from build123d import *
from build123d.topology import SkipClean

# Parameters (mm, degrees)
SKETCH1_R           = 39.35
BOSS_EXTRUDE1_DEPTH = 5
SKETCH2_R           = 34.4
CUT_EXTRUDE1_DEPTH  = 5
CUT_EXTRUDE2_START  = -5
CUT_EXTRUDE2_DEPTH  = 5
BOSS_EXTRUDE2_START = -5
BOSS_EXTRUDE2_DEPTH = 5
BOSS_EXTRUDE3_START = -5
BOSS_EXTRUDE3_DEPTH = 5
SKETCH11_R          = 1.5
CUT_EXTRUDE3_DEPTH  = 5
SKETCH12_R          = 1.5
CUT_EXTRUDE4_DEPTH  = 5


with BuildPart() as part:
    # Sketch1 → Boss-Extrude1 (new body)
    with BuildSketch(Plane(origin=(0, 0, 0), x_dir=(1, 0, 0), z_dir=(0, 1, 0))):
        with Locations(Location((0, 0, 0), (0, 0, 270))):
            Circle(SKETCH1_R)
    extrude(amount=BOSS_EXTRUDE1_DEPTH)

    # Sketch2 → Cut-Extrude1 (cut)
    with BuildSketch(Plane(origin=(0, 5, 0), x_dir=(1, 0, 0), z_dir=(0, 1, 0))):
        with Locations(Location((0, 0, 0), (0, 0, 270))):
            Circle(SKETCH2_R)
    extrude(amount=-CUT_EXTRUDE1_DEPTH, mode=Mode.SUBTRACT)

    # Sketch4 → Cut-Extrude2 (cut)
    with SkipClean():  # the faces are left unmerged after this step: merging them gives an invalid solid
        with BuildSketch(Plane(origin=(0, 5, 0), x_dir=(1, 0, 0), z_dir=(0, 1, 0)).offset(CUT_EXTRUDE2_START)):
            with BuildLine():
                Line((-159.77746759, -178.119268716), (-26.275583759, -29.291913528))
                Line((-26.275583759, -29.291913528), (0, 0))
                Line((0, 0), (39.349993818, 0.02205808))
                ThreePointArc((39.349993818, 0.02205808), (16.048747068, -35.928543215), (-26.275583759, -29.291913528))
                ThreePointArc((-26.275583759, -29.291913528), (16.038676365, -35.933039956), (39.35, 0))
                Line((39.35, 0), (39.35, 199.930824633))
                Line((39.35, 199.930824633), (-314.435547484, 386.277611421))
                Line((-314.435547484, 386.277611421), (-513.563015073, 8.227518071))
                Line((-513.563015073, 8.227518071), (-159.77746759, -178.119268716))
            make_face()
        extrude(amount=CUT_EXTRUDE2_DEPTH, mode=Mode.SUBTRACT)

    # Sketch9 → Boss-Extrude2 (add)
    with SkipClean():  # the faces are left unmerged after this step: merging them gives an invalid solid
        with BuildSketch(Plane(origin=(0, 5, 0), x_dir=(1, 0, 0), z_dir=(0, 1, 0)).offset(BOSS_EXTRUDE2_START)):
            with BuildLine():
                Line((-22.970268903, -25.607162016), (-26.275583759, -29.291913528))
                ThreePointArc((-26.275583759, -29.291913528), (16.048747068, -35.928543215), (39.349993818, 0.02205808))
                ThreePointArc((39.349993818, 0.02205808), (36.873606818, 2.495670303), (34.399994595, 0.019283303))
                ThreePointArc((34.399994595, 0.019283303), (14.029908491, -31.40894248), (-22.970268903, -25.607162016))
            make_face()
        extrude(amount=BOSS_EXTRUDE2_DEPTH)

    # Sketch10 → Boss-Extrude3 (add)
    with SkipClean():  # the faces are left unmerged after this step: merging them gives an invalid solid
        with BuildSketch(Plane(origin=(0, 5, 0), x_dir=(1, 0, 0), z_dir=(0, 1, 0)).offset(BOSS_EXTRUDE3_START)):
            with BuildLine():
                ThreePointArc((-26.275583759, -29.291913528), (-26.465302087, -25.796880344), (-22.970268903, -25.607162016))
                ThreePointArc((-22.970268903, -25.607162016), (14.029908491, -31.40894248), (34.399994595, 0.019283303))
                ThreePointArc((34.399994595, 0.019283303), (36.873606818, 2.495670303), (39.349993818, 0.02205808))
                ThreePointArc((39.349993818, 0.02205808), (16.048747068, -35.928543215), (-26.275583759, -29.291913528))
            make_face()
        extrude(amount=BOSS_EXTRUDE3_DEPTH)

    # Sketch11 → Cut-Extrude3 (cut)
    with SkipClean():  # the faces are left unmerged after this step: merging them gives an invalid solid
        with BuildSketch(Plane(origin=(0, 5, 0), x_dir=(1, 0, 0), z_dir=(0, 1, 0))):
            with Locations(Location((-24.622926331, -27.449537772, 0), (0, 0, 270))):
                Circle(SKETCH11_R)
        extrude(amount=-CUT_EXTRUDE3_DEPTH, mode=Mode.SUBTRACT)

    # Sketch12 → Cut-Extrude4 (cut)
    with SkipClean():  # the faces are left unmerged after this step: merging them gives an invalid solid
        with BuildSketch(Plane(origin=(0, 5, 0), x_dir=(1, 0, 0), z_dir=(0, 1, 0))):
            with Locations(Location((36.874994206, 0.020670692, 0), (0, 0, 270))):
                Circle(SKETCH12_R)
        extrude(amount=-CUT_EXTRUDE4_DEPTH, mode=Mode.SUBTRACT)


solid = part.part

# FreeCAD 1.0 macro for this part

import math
import FreeCAD as App
import Part
import Sketcher

doc = App.newDocument("Part")
body = doc.addObject("PartDesign::Body", "Body")

# Sketch on XZ plane
sketch1 = body.newObject("Sketcher::SketchObject", "Sketch")
sketch1.AttachmentSupport = (doc.getObject("XZ_Plane"), [""])
sketch1.MapMode = "FlatFace"
sketch1.addGeometry(Part.Circle(App.Vector(0, 0, 0), App.Vector(0, 0, 1), 39), False)
sketch1.addConstraint(Sketcher.Constraint("Coincident", 0, 3, -1, 1))
sketch1.addConstraint(Sketcher.Constraint("Diameter", 0, 78.7))
pad1 = body.newObject("PartDesign::Pad", "Pad")
pad1.Profile = sketch1
pad1.Length = 5
pad1.Reversed = True

# Sketch on XZ plane
sketch2 = body.newObject("Sketcher::SketchObject", "Sketch001")
sketch2.AttachmentSupport = (doc.getObject("XZ_Plane"), [""])
sketch2.MapMode = "FlatFace"
sketch2.AttachmentOffset = App.Placement(App.Vector(0, 0, -5), App.Rotation())
sketch2.addGeometry(Part.Circle(App.Vector(0, 0, 0), App.Vector(0, 0, 1), 34), False)
sketch2.addConstraint(Sketcher.Constraint("Coincident", 0, 3, -1, 1))
sketch2.addConstraint(Sketcher.Constraint("Diameter", 0, 68.8))
pocket1 = body.newObject("PartDesign::Pocket", "Pocket")
pocket1.Profile = sketch2
pocket1.Length = 5
pocket1.Reversed = True

# Sketch on XZ plane
sketch3 = body.newObject("Sketcher::SketchObject", "Sketch002")
sketch3.AttachmentSupport = (doc.getObject("XZ_Plane"), [""])
sketch3.MapMode = "FlatFace"
sketch3.addGeometry(Part.LineSegment(App.Vector(-159.777, 178.119, 0), App.Vector(-26.276, 29.292, 0)), False)
sketch3.addGeometry(Part.LineSegment(App.Vector(-26.276, 29.292, 0), App.Vector(0, 0, 0)), False)
sketch3.addGeometry(Part.LineSegment(App.Vector(0, 0, 0), App.Vector(39.35, -0.022, 0)), False)
sketch3.addGeometry(Part.ArcOfCircle(Part.Circle(App.Vector(0, 0, 0), App.Vector(0, 0, 1), 39.35), math.radians(-0.03), math.radians(0)), False)
sketch3.addGeometry(Part.LineSegment(App.Vector(39.35, 0, 0), App.Vector(39.35, -199.931, 0)), False)
sketch3.addGeometry(Part.LineSegment(App.Vector(39.35, -199.931, 0), App.Vector(-314.436, -386.278, 0)), False)
sketch3.addGeometry(Part.LineSegment(App.Vector(-314.436, -386.278, 0), App.Vector(-513.563, -8.228, 0)), False)
sketch3.addGeometry(Part.LineSegment(App.Vector(-513.563, -8.228, 0), App.Vector(-159.777, 178.119, 0)), False)
sketch3.addConstraint(Sketcher.Constraint("Coincident", 0, 2, 1, 1))
sketch3.addConstraint(Sketcher.Constraint("Coincident", 1, 2, 2, 1))
sketch3.addConstraint(Sketcher.Constraint("Coincident", 2, 2, 3, 1))
sketch3.addConstraint(Sketcher.Constraint("Tangent", 3, 2, 4, 1))
sketch3.addConstraint(Sketcher.Constraint("Coincident", 4, 2, 5, 1))
sketch3.addConstraint(Sketcher.Constraint("Coincident", 5, 2, 6, 1))
sketch3.addConstraint(Sketcher.Constraint("Coincident", 6, 2, 7, 1))
sketch3.addConstraint(Sketcher.Constraint("Coincident", 7, 2, 0, 1))
sketch3.addConstraint(Sketcher.Constraint("Vertical", 4))
sketch3.addConstraint(Sketcher.Constraint("Coincident", 3, 3, -1, 1))
sketch3.addConstraint(Sketcher.Constraint("Coincident", 1, 2, -1, 1))
sketch3.addConstraint(Sketcher.Constraint("Parallel", 0, 1))
sketch3.addConstraint(Sketcher.Constraint("Perpendicular", 5, 6))
sketch3.addConstraint(Sketcher.Constraint("Perpendicular", 6, 7))
sketch3.addConstraint(Sketcher.Constraint("Equal", 1, 2))
sketch3.addConstraint(Sketcher.Constraint("Equal", 5, 7))
sketch3.addConstraint(Sketcher.Constraint("Radius", 3, 39.35))
sketch3.addConstraint(Sketcher.Constraint("Distance", 5, 399.861649))
sketch3.addConstraint(Sketcher.Constraint("DistanceY", 4, 2, 4, 1, 199.930825))
sketch3.addConstraint(Sketcher.Constraint("DistanceY", 2, 2, -1, 1, 0.022058))
sketch3.addConstraint(Sketcher.Constraint("DistanceY", 5, 2, -1, 1, 386.277611))
sketch3.addConstraint(Sketcher.Constraint("DistanceY", 6, 2, -1, 1, 8.227518))
pocket2 = body.newObject("PartDesign::Pocket", "Pocket001")
pocket2.Profile = sketch3
pocket2.Length = 5

# Sketch on XZ plane
sketch4 = body.newObject("Sketcher::SketchObject", "Sketch003")
sketch4.AttachmentSupport = (doc.getObject("XZ_Plane"), [""])
sketch4.MapMode = "FlatFace"
sketch4.addGeometry(Part.LineSegment(App.Vector(-23, 25.6, 0), App.Vector(-26.3, 29.3, 0)), False)
sketch4.addGeometry(Part.ArcOfCircle(Part.Circle(App.Vector(0, 0, 0), App.Vector(0, 0, 1), 39.4), math.radians(0), math.radians(132)), False)
sketch4.addGeometry(Part.ArcOfCircle(Part.Circle(App.Vector(36.9, 0, 0), App.Vector(0, 0, 1), 2.5), math.radians(180), math.radians(360)), False)
sketch4.addGeometry(Part.ArcOfCircle(Part.Circle(App.Vector(0, 0, 0), App.Vector(0, 0, 1), 34.4), math.radians(0), math.radians(132)), False)
sketch4.addConstraint(Sketcher.Constraint("Coincident", 0, 2, 1, 2))
sketch4.addConstraint(Sketcher.Constraint("Tangent", 1, 1, 2, 2))
sketch4.addConstraint(Sketcher.Constraint("Tangent", 2, 1, 3, 1))
sketch4.addConstraint(Sketcher.Constraint("Coincident", 3, 2, 0, 1))
sketch4.addConstraint(Sketcher.Constraint("Coincident", 1, 3, -1, 1))
sketch4.addConstraint(Sketcher.Constraint("Coincident", 3, 3, -1, 1))
sketch4.addConstraint(Sketcher.Constraint("Radius", 3, 34.4))
sketch4.addConstraint(Sketcher.Constraint("Radius", 1, 39.35))
sketch4.addConstraint(Sketcher.Constraint("DistanceY", 2, 3, -1, 1, 0.020671))
sketch4.addConstraint(Sketcher.Constraint("DistanceX", 3, 2, -1, 1, 22.970269))
sketch4.addConstraint(Sketcher.Constraint("DistanceY", 1, 1, 0, 2, 29.313972))
pad2 = body.newObject("PartDesign::Pad", "Pad001")
pad2.Profile = sketch4
pad2.Length = 5
pad2.Reversed = True

# Sketch on XZ plane
sketch5 = body.newObject("Sketcher::SketchObject", "Sketch004")
sketch5.AttachmentSupport = (doc.getObject("XZ_Plane"), [""])
sketch5.MapMode = "FlatFace"
sketch5.addGeometry(Part.ArcOfCircle(Part.Circle(App.Vector(-24.6, 27.4, 0), App.Vector(0, 0, 1), 2.5), math.radians(132), math.radians(312)), False)
sketch5.addGeometry(Part.ArcOfCircle(Part.Circle(App.Vector(0, 0, 0), App.Vector(0, 0, 1), 39.4), math.radians(0), math.radians(132)), False)
sketch5.addGeometry(Part.ArcOfCircle(Part.Circle(App.Vector(36.9, 0, 0), App.Vector(0, 0, 1), 2.5), math.radians(180), math.radians(360)), False)
sketch5.addGeometry(Part.ArcOfCircle(Part.Circle(App.Vector(0, 0, 0), App.Vector(0, 0, 1), 34.4), math.radians(0), math.radians(132)), False)
sketch5.addConstraint(Sketcher.Constraint("Tangent", 0, 1, 1, 2))
sketch5.addConstraint(Sketcher.Constraint("Tangent", 1, 1, 2, 2))
sketch5.addConstraint(Sketcher.Constraint("Tangent", 2, 1, 3, 1))
sketch5.addConstraint(Sketcher.Constraint("Tangent", 3, 2, 0, 2))
sketch5.addConstraint(Sketcher.Constraint("Coincident", 1, 3, -1, 1))
sketch5.addConstraint(Sketcher.Constraint("Coincident", 3, 3, -1, 1))
sketch5.addConstraint(Sketcher.Constraint("Radius", 3, 34.4))
sketch5.addConstraint(Sketcher.Constraint("Radius", 1, 39.35))
sketch5.addConstraint(Sketcher.Constraint("DistanceY", 2, 3, -1, 1, 0.020671))
sketch5.addConstraint(Sketcher.Constraint("DistanceX", 3, 2, -1, 1, 22.970269))
pad3 = body.newObject("PartDesign::Pad", "Pad002")
pad3.Profile = sketch5
pad3.Length = 5
pad3.Reversed = True

# Sketch on XZ plane
sketch6 = body.newObject("Sketcher::SketchObject", "Sketch005")
sketch6.AttachmentSupport = (doc.getObject("XZ_Plane"), [""])
sketch6.MapMode = "FlatFace"
sketch6.AttachmentOffset = App.Placement(App.Vector(0, 0, -5), App.Rotation())
sketch6.addGeometry(Part.Circle(App.Vector(-24.6, 27.4, 0), App.Vector(0, 0, 1), 1.5), False)
sketch6.addConstraint(Sketcher.Constraint("Diameter", 0, 3.0))
sketch6.addConstraint(Sketcher.Constraint("DistanceX", 0, 3, -1, 1, 24.622926))
sketch6.addConstraint(Sketcher.Constraint("DistanceY", -1, 1, 0, 3, 27.449538))
pocket3 = body.newObject("PartDesign::Pocket", "Pocket002")
pocket3.Profile = sketch6
pocket3.Length = 5
pocket3.Reversed = True

# Sketch on XZ plane
sketch7 = body.newObject("Sketcher::SketchObject", "Sketch006")
sketch7.AttachmentSupport = (doc.getObject("XZ_Plane"), [""])
sketch7.MapMode = "FlatFace"
sketch7.AttachmentOffset = App.Placement(App.Vector(0, 0, -5), App.Rotation())
sketch7.addGeometry(Part.Circle(App.Vector(36.9, 0, 0), App.Vector(0, 0, 1), 1.5), False)
sketch7.addConstraint(Sketcher.Constraint("Diameter", 0, 3.0))
sketch7.addConstraint(Sketcher.Constraint("DistanceY", 0, 3, -1, 1, 0.020671))
sketch7.addConstraint(Sketcher.Constraint("DistanceX", -1, 1, 0, 3, 36.874994))
pocket4 = body.newObject("PartDesign::Pocket", "Pocket003")
pocket4.Profile = sketch7
pocket4.Length = 5
pocket4.Reversed = True

doc.recompute()
